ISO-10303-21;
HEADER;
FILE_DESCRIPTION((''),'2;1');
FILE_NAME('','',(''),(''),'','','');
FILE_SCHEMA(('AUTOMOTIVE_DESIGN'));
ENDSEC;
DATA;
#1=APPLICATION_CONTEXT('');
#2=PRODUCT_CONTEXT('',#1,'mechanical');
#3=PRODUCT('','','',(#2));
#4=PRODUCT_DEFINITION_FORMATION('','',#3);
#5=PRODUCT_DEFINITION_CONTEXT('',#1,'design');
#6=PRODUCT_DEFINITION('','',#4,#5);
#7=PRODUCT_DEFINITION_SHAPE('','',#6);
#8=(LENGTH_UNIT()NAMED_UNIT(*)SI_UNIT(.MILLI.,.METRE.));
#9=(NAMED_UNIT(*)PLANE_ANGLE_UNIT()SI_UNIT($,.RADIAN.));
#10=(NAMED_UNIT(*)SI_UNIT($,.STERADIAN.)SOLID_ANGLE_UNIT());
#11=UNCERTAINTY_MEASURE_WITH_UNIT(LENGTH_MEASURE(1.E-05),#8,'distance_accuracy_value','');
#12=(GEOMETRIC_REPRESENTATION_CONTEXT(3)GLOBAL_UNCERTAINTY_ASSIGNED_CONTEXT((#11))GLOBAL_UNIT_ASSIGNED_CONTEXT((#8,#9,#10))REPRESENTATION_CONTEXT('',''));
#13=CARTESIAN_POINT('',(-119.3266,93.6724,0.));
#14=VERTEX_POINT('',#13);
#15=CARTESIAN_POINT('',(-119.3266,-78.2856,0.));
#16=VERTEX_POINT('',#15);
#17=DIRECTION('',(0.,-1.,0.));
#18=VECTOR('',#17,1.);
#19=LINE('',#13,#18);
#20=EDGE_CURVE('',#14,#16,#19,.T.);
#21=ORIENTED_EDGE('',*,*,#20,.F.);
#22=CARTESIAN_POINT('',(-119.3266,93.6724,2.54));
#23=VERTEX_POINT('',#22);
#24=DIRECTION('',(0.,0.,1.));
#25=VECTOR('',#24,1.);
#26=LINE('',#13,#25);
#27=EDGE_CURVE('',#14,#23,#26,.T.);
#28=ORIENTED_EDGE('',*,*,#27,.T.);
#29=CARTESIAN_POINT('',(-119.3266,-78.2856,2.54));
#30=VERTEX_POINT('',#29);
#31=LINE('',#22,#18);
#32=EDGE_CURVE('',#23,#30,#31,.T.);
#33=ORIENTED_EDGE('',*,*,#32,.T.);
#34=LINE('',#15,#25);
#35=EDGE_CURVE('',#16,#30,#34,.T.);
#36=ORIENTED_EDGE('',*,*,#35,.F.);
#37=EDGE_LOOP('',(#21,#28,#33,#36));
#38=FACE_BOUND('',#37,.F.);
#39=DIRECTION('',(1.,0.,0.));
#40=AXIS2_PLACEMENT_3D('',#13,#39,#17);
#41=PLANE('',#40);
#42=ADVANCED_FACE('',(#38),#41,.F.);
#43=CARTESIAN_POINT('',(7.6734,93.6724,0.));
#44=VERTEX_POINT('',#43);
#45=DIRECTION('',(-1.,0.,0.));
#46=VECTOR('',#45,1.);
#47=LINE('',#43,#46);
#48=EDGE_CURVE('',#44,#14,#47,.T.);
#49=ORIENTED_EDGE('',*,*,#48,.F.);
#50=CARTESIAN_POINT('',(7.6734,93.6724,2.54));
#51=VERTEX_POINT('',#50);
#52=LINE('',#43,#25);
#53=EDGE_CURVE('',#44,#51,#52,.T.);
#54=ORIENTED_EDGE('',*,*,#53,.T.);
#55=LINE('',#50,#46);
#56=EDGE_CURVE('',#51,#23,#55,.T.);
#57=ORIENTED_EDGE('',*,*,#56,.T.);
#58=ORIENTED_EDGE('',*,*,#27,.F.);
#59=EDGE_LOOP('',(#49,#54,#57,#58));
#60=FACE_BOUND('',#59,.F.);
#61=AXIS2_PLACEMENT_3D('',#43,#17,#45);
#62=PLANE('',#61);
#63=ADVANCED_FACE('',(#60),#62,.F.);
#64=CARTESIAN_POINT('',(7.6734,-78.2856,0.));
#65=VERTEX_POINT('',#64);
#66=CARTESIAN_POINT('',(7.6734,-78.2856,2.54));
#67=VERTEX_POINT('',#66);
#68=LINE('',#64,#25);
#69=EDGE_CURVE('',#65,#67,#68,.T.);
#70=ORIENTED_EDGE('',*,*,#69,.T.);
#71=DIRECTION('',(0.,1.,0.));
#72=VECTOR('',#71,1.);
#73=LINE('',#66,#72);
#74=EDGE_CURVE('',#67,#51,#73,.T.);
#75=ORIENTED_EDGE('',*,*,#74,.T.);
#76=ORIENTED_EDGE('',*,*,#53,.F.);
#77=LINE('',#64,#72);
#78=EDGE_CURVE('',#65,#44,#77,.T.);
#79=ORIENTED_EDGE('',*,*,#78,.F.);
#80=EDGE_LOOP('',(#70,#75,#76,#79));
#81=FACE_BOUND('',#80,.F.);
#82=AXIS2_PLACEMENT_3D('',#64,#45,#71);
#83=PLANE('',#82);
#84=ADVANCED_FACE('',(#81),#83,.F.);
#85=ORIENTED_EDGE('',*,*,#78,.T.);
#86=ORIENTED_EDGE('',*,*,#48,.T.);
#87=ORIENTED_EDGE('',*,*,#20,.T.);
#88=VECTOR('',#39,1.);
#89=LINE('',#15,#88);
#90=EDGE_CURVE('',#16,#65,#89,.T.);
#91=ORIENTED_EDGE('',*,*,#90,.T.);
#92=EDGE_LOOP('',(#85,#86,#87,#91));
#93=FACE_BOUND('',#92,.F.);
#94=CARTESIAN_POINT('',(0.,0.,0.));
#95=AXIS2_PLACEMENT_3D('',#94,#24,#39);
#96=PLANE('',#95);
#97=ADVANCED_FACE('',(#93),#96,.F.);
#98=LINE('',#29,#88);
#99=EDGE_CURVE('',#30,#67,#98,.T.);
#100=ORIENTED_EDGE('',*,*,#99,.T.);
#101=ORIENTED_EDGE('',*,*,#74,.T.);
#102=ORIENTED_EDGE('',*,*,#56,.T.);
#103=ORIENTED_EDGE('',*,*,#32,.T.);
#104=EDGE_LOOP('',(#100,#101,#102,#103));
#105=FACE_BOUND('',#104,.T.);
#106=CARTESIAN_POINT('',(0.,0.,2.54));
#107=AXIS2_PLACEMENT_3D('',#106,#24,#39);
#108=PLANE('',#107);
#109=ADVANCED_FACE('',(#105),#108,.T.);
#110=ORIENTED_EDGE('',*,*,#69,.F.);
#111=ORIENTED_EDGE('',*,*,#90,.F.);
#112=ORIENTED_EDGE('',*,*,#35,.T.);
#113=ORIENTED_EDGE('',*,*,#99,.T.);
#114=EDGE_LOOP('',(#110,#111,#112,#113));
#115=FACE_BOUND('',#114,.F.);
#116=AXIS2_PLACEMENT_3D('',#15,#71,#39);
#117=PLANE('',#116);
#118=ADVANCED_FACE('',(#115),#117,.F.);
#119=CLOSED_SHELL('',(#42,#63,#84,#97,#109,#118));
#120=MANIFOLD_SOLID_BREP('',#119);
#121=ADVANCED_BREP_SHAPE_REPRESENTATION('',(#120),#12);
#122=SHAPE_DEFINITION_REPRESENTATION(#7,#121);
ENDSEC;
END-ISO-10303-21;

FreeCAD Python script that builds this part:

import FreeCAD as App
import Part
import Sketcher
from FreeCAD import Vector
Q = App.Units.Quantity


def add_polygon(sketch, points):
    """Adds a closed chain of lines whose ends are joined by coincident constraints."""
    first, n = sketch.GeometryCount, len(points)
    for a, b in zip(points, points[1:] + points[:1]):
        sketch.addGeometry(Part.LineSegment(App.Vector(*a, 0), App.Vector(*b, 0)), False)
    for i in range(n):
        sketch.addConstraint(Sketcher.Constraint("Coincident", first + i, 2, first + (i + 1) % n, 1))

doc = App.newDocument("Part")
body = doc.addObject("PartDesign::Body", "Body")

# Sketch on XY plane
sketch1 = doc.addObject("Sketcher::SketchObject", "Sketch")
body.addObject(sketch1)
sketch1.AttachmentSupport = (doc.XY_Plane, [""])
sketch1.MapMode = "FlatFace"
add_polygon(sketch1, [(7.6734, -78.2856), (7.6734, 93.6724), (-119.3266, 93.6724), (-119.3266, -78.2856)])  # lines 0-3
sketch1.addConstraint([
    Sketcher.Constraint("Vertical", 0),
    Sketcher.Constraint("Horizontal", 1),
    Sketcher.Constraint("Vertical", 2),
    Sketcher.Constraint("Horizontal", 3),
    Sketcher.Constraint("DistanceX", 1, 2, 1, 1, Q("5 in")),
    Sketcher.Constraint("DistanceY", 0, 1, 0, 2, Q("6.77 in")),
    Sketcher.Constraint("DistanceX", -1, 1, 0, 2, Q("0.3021 in")),
    Sketcher.Constraint("DistanceY", -1, 1, 0, 2, Q("3.6879 in")),
])
pad1 = doc.addObject("PartDesign::Pad", "Pad")
body.addObject(pad1)
pad1.Profile = sketch1
pad1.Length = Q("0.1 in")

doc.recompute()
